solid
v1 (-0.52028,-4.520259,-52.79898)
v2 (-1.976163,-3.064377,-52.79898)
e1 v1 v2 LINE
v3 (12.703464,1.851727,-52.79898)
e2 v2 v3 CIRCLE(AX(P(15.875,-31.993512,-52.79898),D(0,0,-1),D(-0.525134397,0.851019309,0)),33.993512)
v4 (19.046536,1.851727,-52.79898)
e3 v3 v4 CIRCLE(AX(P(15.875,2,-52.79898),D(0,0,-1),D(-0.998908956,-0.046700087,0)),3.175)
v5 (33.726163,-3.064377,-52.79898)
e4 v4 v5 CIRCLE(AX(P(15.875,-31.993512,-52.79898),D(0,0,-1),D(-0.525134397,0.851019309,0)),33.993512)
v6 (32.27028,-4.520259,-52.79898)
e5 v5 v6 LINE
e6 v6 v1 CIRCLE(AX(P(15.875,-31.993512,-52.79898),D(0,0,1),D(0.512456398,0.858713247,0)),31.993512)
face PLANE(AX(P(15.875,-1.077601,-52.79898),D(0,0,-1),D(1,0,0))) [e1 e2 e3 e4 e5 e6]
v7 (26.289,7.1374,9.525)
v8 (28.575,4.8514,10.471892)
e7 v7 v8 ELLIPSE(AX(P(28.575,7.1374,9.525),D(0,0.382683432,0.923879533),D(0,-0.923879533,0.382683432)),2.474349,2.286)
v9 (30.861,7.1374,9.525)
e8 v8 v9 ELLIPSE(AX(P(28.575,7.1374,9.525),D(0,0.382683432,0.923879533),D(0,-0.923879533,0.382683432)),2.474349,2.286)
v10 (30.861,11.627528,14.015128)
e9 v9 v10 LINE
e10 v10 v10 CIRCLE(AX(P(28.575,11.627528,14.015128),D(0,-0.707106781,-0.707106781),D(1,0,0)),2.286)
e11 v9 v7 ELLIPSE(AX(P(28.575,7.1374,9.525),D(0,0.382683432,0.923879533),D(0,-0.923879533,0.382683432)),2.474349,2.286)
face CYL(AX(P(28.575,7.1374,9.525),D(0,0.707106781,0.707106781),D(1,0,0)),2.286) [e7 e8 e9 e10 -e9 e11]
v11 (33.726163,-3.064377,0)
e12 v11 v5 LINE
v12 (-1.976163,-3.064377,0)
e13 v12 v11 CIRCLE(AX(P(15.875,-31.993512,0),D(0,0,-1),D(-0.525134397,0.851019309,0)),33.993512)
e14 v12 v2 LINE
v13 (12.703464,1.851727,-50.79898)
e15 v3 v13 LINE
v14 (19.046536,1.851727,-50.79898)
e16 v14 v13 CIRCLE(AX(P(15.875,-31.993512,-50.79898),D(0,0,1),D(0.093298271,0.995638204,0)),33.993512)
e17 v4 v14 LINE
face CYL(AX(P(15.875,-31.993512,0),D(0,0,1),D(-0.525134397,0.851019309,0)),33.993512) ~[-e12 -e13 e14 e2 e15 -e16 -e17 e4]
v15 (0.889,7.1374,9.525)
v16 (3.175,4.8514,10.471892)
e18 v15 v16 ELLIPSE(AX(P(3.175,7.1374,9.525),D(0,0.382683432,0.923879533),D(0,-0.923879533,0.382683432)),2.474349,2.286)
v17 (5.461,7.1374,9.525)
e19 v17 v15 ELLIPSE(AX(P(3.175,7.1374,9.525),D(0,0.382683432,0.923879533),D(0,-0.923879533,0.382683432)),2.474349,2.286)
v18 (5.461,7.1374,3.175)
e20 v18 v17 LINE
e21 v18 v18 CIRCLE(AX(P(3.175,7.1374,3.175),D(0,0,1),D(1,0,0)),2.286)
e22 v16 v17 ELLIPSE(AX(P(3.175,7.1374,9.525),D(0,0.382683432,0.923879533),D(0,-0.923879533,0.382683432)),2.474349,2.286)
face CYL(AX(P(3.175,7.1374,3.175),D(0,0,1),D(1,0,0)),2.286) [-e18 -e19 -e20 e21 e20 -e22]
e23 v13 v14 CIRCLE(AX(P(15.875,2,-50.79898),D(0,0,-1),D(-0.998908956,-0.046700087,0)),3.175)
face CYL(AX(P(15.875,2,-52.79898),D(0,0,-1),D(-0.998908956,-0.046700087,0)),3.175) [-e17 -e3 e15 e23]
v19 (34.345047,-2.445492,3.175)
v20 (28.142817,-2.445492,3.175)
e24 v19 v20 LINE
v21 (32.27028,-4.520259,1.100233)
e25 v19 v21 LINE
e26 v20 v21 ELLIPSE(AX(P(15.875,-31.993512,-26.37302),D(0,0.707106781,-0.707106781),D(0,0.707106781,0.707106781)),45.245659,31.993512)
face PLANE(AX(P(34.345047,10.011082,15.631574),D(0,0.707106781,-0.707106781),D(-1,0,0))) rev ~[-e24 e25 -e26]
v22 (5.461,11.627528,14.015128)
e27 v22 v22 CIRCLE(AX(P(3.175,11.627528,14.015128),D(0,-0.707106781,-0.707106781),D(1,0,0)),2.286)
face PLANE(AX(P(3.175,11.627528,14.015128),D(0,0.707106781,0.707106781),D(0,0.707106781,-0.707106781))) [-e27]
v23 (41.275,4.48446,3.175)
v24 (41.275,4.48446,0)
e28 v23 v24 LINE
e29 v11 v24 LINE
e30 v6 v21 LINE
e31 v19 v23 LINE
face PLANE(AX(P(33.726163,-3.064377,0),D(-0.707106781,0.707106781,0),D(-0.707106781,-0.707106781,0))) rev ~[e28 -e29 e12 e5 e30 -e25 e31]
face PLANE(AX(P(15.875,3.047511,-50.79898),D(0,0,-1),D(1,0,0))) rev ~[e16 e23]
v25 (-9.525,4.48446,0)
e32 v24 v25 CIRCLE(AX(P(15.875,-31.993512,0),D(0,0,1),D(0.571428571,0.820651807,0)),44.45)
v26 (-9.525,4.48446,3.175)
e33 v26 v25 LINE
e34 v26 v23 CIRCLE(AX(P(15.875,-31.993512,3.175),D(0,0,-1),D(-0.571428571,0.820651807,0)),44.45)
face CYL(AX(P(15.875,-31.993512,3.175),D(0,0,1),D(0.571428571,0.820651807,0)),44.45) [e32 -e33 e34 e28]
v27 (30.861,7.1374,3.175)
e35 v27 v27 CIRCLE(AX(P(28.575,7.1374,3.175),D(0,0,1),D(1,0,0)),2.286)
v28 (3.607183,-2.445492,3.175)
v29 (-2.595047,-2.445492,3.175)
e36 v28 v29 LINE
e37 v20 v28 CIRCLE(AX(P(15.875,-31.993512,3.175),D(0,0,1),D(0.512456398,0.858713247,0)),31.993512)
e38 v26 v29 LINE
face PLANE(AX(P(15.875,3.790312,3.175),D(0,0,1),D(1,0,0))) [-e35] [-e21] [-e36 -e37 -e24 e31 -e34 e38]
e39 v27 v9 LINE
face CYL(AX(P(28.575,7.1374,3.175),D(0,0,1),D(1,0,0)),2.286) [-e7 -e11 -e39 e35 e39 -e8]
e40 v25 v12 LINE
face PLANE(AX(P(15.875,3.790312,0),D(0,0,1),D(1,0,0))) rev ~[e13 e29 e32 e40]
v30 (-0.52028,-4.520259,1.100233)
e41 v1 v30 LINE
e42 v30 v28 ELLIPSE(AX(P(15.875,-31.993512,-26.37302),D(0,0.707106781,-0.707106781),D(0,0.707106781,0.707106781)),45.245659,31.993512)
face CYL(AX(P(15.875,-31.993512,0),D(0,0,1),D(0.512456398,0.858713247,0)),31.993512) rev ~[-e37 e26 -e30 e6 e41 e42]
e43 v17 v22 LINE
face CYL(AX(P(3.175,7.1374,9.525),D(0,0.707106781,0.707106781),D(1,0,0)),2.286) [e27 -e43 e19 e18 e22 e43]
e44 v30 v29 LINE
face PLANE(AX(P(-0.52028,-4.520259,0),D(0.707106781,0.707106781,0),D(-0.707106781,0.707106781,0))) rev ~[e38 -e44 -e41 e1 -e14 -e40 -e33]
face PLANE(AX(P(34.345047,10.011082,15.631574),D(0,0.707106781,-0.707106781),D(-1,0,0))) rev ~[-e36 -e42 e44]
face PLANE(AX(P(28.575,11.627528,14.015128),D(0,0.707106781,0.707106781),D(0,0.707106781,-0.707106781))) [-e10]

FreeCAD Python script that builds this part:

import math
import FreeCAD as App
import Part
import Sketcher
Q = App.Units.Quantity


def add_polygon(sketch, points):
    """Adds a closed chain of lines whose ends are joined by coincident constraints."""
    first, n = sketch.GeometryCount, len(points)
    for a, b in zip(points, points[1:] + points[:1]):
        sketch.addGeometry(Part.LineSegment(App.Vector(*a, 0), App.Vector(*b, 0)), False)
    for i in range(n):
        sketch.addConstraint(Sketcher.Constraint("Coincident", first + i, 2, first + (i + 1) % n, 1))

doc = App.newDocument("Part")
body = doc.addObject("PartDesign::Body", "Body")

# Sketch on XY plane
sketch1 = doc.addObject("Sketcher::SketchObject", "Sketch")
body.addObject(sketch1)
sketch1.AttachmentSupport = (doc.XY_Plane, [""])
sketch1.MapMode = "FlatFace"
add_polygon(sketch1, [(0, 9.525), (0, 0), (31.75, 0), (31.75, 9.525)])  # lines 0-3
sketch1.addConstraint([
    Sketcher.Constraint("Vertical", 0),
    Sketcher.Constraint("Horizontal", 1),
    Sketcher.Constraint("Vertical", 2),
    Sketcher.Constraint("Horizontal", 3),
    Sketcher.Constraint("Coincident", 0, 2, -1, 1),
    Sketcher.Constraint("DistanceX", 1, 1, 1, 2, Q("1.25 in")),
    Sketcher.Constraint("DistanceY", 0, 2, 0, 1, Q("0.375 in")),
])
pad1 = doc.addObject("PartDesign::Pad", "Pad")
body.addObject(pad1)
pad1.Profile = sketch1
pad1.Length = Q("0.125 in")

# Sketch on XY plane
sketch2 = doc.addObject("Sketcher::SketchObject", "Sketch001")
body.addObject(sketch2)
sketch2.AttachmentSupport = (doc.XY_Plane, [""])
sketch2.MapMode = "FlatFace"
sketch2.AttachmentOffset = App.Placement(App.Vector(0, 0, 0.125 * 25.4), App.Rotation())
sketch2.addGeometry(Part.Circle(App.Vector(28.575, 7.1374, 0), App.Vector(0, 0, 1), 2.286), False)
sketch2.addConstraint([
    Sketcher.Constraint("Diameter", 0, Q("0.18 in")),
    Sketcher.Constraint("DistanceX", -1, 1, 0, 3, Q("1.125 in")),
    Sketcher.Constraint("DistanceY", -1, 1, 0, 3, Q("0.281 in")),
])

# Sketch on YZ plane
sketch3 = doc.addObject("Sketcher::SketchObject", "Sketch002")
body.addObject(sketch3)
sketch3.AttachmentSupport = (doc.YZ_Plane, [""])
sketch3.MapMode = "FlatFace"
sketch3.AttachmentOffset = App.Placement(App.Vector(0, 0, 1.125 * 25.4), App.Rotation())
sketch3.addGeometry([
    Part.LineSegment(App.Vector(7.1374, 3.175, 0), App.Vector(7.1374, 9.525, 0)),
    Part.LineSegment(App.Vector(7.1374, 9.525, 0), App.Vector(11.627528, 14.015128, 0)),
], False)
sketch3.addConstraint([
    Sketcher.Constraint("Coincident", 0, 2, 1, 1),
    Sketcher.Constraint("Vertical", 0),
    Sketcher.Constraint("Angle", 1, Q("45 deg")),
    Sketcher.Constraint("DistanceY", 0, 1, 0, 2, Q("0.25 in")),
    Sketcher.Constraint("Distance", 1, Q("0.25 in")),
    Sketcher.Constraint("DistanceX", -1, 1, 0, 1, Q("0.281 in")),
    Sketcher.Constraint("DistanceY", -1, 1, 0, 1, Q("0.125 in")),
])
doc.recompute()

additivepipe = doc.addObject("PartDesign::AdditivePipe", "AdditivePipe")
body.addObject(additivepipe)
additivepipe.Profile = sketch2
additivepipe.Spine = (sketch3, ["Edge1", "Edge2"])
additivepipe.Transition = "Right corner"

# Sketch on XY plane
sketch4 = doc.addObject("Sketcher::SketchObject", "Sketch003")
body.addObject(sketch4)
sketch4.AttachmentSupport = (doc.XY_Plane, [""])
sketch4.MapMode = "FlatFace"
sketch4.AttachmentOffset = App.Placement(App.Vector(0, 0, 0.125 * 25.4), App.Rotation())
sketch4.addGeometry(Part.Circle(App.Vector(3.175, 7.1374, 0), App.Vector(0, 0, 1), 2.286), False)
sketch4.addConstraint([
    Sketcher.Constraint("Diameter", 0, Q("0.18 in")),
    Sketcher.Constraint("DistanceX", -1, 1, 0, 3, Q("0.125 in")),
    Sketcher.Constraint("DistanceY", -1, 1, 0, 3, Q("0.281 in")),
])

# Sketch on YZ plane
sketch5 = doc.addObject("Sketcher::SketchObject", "Sketch004")
body.addObject(sketch5)
sketch5.AttachmentSupport = (doc.YZ_Plane, [""])
sketch5.MapMode = "FlatFace"
sketch5.AttachmentOffset = App.Placement(App.Vector(0, 0, 0.125 * 25.4), App.Rotation())
sketch5.addGeometry([
    Part.LineSegment(App.Vector(7.1374, 3.175, 0), App.Vector(7.1374, 9.525, 0)),
    Part.LineSegment(App.Vector(7.1374, 9.525, 0), App.Vector(11.627528, 14.015128, 0)),
], False)
sketch5.addConstraint([
    Sketcher.Constraint("Coincident", 0, 2, 1, 1),
    Sketcher.Constraint("Vertical", 0),
    Sketcher.Constraint("Angle", 1, Q("45 deg")),
    Sketcher.Constraint("DistanceY", 0, 1, 0, 2, Q("0.25 in")),
    Sketcher.Constraint("Distance", 1, Q("0.25 in")),
    Sketcher.Constraint("DistanceX", -1, 1, 0, 1, Q("0.281 in")),
    Sketcher.Constraint("DistanceY", -1, 1, 0, 1, Q("0.125 in")),
])
doc.recompute()

additivepipe2 = doc.addObject("PartDesign::AdditivePipe", "AdditivePipe001")
body.addObject(additivepipe2)
additivepipe2.Profile = sketch4
additivepipe2.Spine = (sketch5, ["Edge1", "Edge2"])
additivepipe2.Transition = "Right corner"

# Sketch on XY plane
sketch6 = doc.addObject("Sketcher::SketchObject", "Sketch005")
body.addObject(sketch6)
sketch6.AttachmentSupport = (doc.XY_Plane, [""])
sketch6.MapMode = "FlatFace"
sketch6.AttachmentOffset = App.Placement(App.Vector(0, 0, 0.125 * 25.4), App.Rotation())
sketch6.addGeometry([
    Part.LineSegment(App.Vector(32.27028, -4.520259, 0), App.Vector(41.275, 4.48446, 0)),
    Part.ArcOfCircle(Part.Circle(App.Vector(15.875, -31.993512, 0), App.Vector(0, 0, 1), 44.45), math.radians(55.150095), math.radians(124.849905)),
    Part.LineSegment(App.Vector(-9.525, 4.48446, 0), App.Vector(-0.52028, -4.520259, 0)),
    Part.ArcOfCircle(Part.Circle(App.Vector(15.875, -31.993512, 0), App.Vector(0, 0, 1), 31.993512), math.radians(59.172412), math.radians(120.827588)),
], False)
sketch6.addConstraint([
    Sketcher.Constraint("Coincident", 0, 2, 1, 1),
    Sketcher.Constraint("Coincident", 1, 2, 2, 1),
    Sketcher.Constraint("Coincident", 2, 2, 3, 2),
    Sketcher.Constraint("Coincident", 3, 1, 0, 1),
    Sketcher.Constraint("Coincident", 3, 3, 1, 3),
    Sketcher.Constraint("Perpendicular", 0, 2),
    Sketcher.Constraint("Horizontal", 0, 2, 1, 2),
    Sketcher.Constraint("Horizontal", 2, 2, 3, 1),
    Sketcher.Constraint("Radius", 1, Q("1.75 in")),
    Sketcher.Constraint("DistanceX", 1, 3, 0, 2, Q("1 in")),
    Sketcher.Constraint("DistanceX", -1, 1, 1, 3, Q("0.625 in")),
    Sketcher.Constraint("Radius", 3, 31.993512),
    Sketcher.Constraint("DistanceY", -1, 1, 0, 2, 4.48446),
])
pad2 = doc.addObject("PartDesign::Pad", "Pad001")
body.addObject(pad2)
pad2.Profile = sketch6
pad2.Type = "UpToLast"
pad2.Reversed = True

# Sketch on XY plane
sketch7 = doc.addObject("Sketcher::SketchObject", "Sketch006")
body.addObject(sketch7)
sketch7.AttachmentSupport = (doc.XY_Plane, [""])
sketch7.MapMode = "FlatFace"
sketch7.addGeometry([
    Part.LineSegment(App.Vector(-0.52028, -4.520259, 0), App.Vector(-1.976163, -3.064377, 0)),
    Part.ArcOfCircle(Part.Circle(App.Vector(15.875, -31.993512, 0), App.Vector(0, 0, 1), 33.993512), math.radians(58.322709), math.radians(121.677291)),
    Part.LineSegment(App.Vector(33.726163, -3.064377, 0), App.Vector(32.27028, -4.520259, 0)),
    Part.ArcOfCircle(Part.Circle(App.Vector(15.875, -31.993512, 0), App.Vector(0, 0, 1), 31.993512), math.radians(59.172412), math.radians(120.827588)),
], False)
sketch7.addConstraint([
    Sketcher.Constraint("Coincident", 0, 2, 1, 2),
    Sketcher.Constraint("Coincident", 1, 1, 2, 1),
    Sketcher.Constraint("Coincident", 2, 2, 3, 1),
    Sketcher.Constraint("Coincident", 3, 2, 0, 1),
    Sketcher.Constraint("Coincident", 3, 3, 1, 3),
    Sketcher.Constraint("Perpendicular", 0, 2),
    Sketcher.Constraint("Horizontal", 0, 2, 1, 1),
    Sketcher.Constraint("Horizontal", 2, 2, 3, 2),
    Sketcher.Constraint("DistanceX", -1, 1, 1, 3, Q("0.625 in")),
    Sketcher.Constraint("Radius", 1, 33.993512),
    Sketcher.Constraint("Radius", 3, 31.993512),
    Sketcher.Constraint("Distance", 0, 2.058929),
    Sketcher.Constraint("DistanceY", 2, 2, -1, 1, 4.520259),
])
pad3 = doc.addObject("PartDesign::Pad", "Pad002")
body.addObject(pad3)
pad3.Profile = sketch7
pad3.Length = Q("2.0787 in")
pad3.Reversed = True

# Sketch on an angled plane
sketch8 = doc.addObject("Sketcher::SketchObject", "Sketch007")
body.addObject(sketch8)
sketch8.Placement = App.Placement(App.Vector(0, 12.821328, 12.821328), App.Rotation(App.Vector(1, 0, 0), App.Vector(0, 0.707106781, -0.707106781), App.Vector(0, 0.707106781, 0.707106781), "ZXY"))
add_polygon(sketch8, [(-2.595047, -3.974288), (-2.595047, -10.254829), (34.345047, -10.254829), (34.345047, -3.974288)])  # lines 0-3
sketch8.addConstraint([
    Sketcher.Constraint("Vertical", 0),
    Sketcher.Constraint("Horizontal", 1),
    Sketcher.Constraint("Vertical", 2),
    Sketcher.Constraint("Horizontal", 3),
    Sketcher.Constraint("DistanceY", 0, 2, 0, 1, 6.280541),
    Sketcher.Constraint("DistanceX", 1, 1, 1, 2, 36.940095),
    Sketcher.Constraint("DistanceY", 0, 2, -1, 1, 10.254829),
    Sketcher.Constraint("DistanceX", 0, 2, -1, 1, 2.595047),
])
pocket1 = doc.addObject("PartDesign::Pocket", "Pocket")
body.addObject(pocket1)
pocket1.Profile = sketch8
pocket1.Length = Q("1 in")

# Sketch on XY plane
sketch9 = doc.addObject("Sketcher::SketchObject", "Sketch008")
body.addObject(sketch9)
sketch9.AttachmentSupport = (doc.XY_Plane, [""])
sketch9.MapMode = "FlatFace"
sketch9.AttachmentOffset = App.Placement(App.Vector(0, 0, -2.0787 * 25.4), App.Rotation())
sketch9.addGeometry([
    Part.ArcOfCircle(Part.Circle(App.Vector(15.875, -31.993512, 0), App.Vector(0, 0, 1), 33.993512), math.radians(84.646617), math.radians(95.353383)),
    Part.ArcOfCircle(Part.Circle(App.Vector(15.875, 2, 0), App.Vector(0, 0, 1), 3.175), math.radians(-2.676691), math.radians(182.676691)),
], False)
sketch9.addConstraint([
    Sketcher.Constraint("Coincident", 0, 1, 1, 1),
    Sketcher.Constraint("Coincident", 1, 2, 0, 2),
    Sketcher.Constraint("Horizontal", 0, 1, 1, 2),
    Sketcher.Constraint("Radius", 1, Q("0.125 in")),
    Sketcher.Constraint("DistanceX", -1, 1, 0, 3, Q("0.625 in")),
    Sketcher.Constraint("Radius", 0, 33.993512),
    Sketcher.Constraint("DistanceY", -1, 1, 1, 3, 2.0),
    Sketcher.Constraint("DistanceX", 1, 2, 0, 1, 6.343072),
])
pad4 = doc.addObject("PartDesign::Pad", "Pad003")
body.addObject(pad4)
pad4.Profile = sketch9
pad4.Length = 2

doc.recompute()
